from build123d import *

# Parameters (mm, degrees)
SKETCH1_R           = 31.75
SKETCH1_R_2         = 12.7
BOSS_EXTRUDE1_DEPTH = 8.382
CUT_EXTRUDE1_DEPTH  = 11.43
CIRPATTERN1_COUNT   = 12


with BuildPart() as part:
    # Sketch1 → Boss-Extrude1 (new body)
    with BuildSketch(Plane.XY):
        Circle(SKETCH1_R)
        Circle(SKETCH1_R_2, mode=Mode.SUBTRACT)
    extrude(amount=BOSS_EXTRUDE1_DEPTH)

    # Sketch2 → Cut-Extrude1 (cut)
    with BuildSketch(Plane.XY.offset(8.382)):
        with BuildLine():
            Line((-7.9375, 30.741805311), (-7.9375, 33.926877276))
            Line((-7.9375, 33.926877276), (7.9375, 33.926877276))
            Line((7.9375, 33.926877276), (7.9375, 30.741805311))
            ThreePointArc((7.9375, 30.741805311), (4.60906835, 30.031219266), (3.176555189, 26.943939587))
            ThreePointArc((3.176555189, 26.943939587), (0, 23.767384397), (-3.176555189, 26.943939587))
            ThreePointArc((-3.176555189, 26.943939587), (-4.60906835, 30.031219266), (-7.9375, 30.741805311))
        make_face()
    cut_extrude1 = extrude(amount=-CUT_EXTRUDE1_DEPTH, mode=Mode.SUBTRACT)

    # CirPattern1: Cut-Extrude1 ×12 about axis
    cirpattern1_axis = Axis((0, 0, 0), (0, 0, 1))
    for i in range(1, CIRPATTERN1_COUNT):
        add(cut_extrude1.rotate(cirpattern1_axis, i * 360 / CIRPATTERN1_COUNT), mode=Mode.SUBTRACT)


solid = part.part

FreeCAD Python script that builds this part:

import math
import FreeCAD as App
import Part
import Sketcher
Q = App.Units.Quantity

doc = App.newDocument("Part")
body = doc.addObject("PartDesign::Body", "Body")

# Sketch on XY plane
sketch1 = body.newObject("Sketcher::SketchObject", "Sketch")
sketch1.AttachmentSupport = (doc.getObject("XY_Plane"), [""])
sketch1.MapMode = "FlatFace"
sketch1.addGeometry([
    Part.Circle(App.Vector(0, 0, 0), App.Vector(0, 0, 1), 32),
    Part.Circle(App.Vector(0, 0, 0), App.Vector(0, 0, 1), 13),
], False)
sketch1.addConstraint([
    Sketcher.Constraint("Coincident", 0, 3, -1, 1),
    Sketcher.Constraint("Coincident", 1, 3, -1, 1),
    Sketcher.Constraint("Diameter", 1, Q("1 in")),
    Sketcher.Constraint("Diameter", 0, Q("2.5 in")),
])
pad1 = body.newObject("PartDesign::Pad", "Pad")
pad1.Profile = sketch1
pad1.Length = Q("0.33 in")

# Sketch on XY plane
sketch2 = body.newObject("Sketcher::SketchObject", "Sketch001")
sketch2.AttachmentSupport = (doc.getObject("XY_Plane"), [""])
sketch2.MapMode = "FlatFace"
sketch2.AttachmentOffset = App.Placement(App.Vector(0, 0, 0.33 * 25.4), App.Rotation())
sketch2.addGeometry([
    Part.LineSegment(App.Vector(-7.9, 33.9, 0), App.Vector(-7.9, 30.7, 0)),  # 0
    Part.ArcOfCircle(Part.Circle(App.Vector(-7, 27.1, 0), App.Vector(0, 0, 1), 3.8), math.radians(-2), math.radians(104)),  # 1
    Part.ArcOfCircle(Part.Circle(App.Vector(0, 26.9, 0), App.Vector(0, 0, 1), 3.2), math.radians(180), math.radians(360)),  # 2
    Part.ArcOfCircle(Part.Circle(App.Vector(7, 27.1, 0), App.Vector(0, 0, 1), 3.8), math.radians(76), math.radians(182)),  # 3
    Part.LineSegment(App.Vector(7.9, 30.7, 0), App.Vector(7.9, 33.9, 0)),  # 4
    Part.LineSegment(App.Vector(7.9, 33.9, 0), App.Vector(-7.9, 33.9, 0)),  # 5
], False)
sketch2.addConstraint([
    Sketcher.Constraint("Coincident", 0, 2, 1, 2),
    Sketcher.Constraint("Coincident", 1, 1, 2, 1),
    Sketcher.Constraint("Coincident", 2, 2, 3, 2),
    Sketcher.Constraint("Coincident", 3, 1, 4, 1),
    Sketcher.Constraint("Coincident", 4, 2, 5, 1),
    Sketcher.Constraint("Coincident", 5, 2, 0, 1),
    Sketcher.Constraint("Vertical", 0),
    Sketcher.Constraint("Vertical", 4),
    Sketcher.Constraint("Horizontal", 5),
    Sketcher.Constraint("Equal", 1, 3),
    Sketcher.Constraint("Symmetric", 1, 3, 3, 3, -2),
    Sketcher.Constraint("PointOnObject", 2, 3, -2),
    Sketcher.Constraint("Horizontal", 2, 3, 1, 1),
    Sketcher.Constraint("Horizontal", 0, 2, 3, 1),
    Sketcher.Constraint("Radius", 1, Q("0.15 in")),
    Sketcher.Constraint("DistanceX", 5, 2, 5, 1, Q("0.625 in")),
    Sketcher.Constraint("DistanceX", 1, 3, 3, 3, Q("0.55 in")),
    Sketcher.Constraint("Radius", 2, Q("3.176555 mm")),
    Sketcher.Constraint("DistanceY", 0, 2, 0, 1, Q("3.185072 mm")),
    Sketcher.Constraint("DistanceY", -1, 1, 1, 3, Q("27.052789 mm")),
])
pocket1 = body.newObject("PartDesign::Pocket", "Pocket")
pocket1.Profile = sketch2
pocket1.Length = Q("0.45 in")
doc.recompute()

polarpattern = body.newObject("PartDesign::PolarPattern", "PolarPattern")
polarpattern.Originals = [pocket1]
polarpattern.Axis = (doc.getObject("Z_Axis"), [""])
polarpattern.Angle = 360
polarpattern.Occurrences = 12
body.Tip = polarpattern

doc.recompute()
